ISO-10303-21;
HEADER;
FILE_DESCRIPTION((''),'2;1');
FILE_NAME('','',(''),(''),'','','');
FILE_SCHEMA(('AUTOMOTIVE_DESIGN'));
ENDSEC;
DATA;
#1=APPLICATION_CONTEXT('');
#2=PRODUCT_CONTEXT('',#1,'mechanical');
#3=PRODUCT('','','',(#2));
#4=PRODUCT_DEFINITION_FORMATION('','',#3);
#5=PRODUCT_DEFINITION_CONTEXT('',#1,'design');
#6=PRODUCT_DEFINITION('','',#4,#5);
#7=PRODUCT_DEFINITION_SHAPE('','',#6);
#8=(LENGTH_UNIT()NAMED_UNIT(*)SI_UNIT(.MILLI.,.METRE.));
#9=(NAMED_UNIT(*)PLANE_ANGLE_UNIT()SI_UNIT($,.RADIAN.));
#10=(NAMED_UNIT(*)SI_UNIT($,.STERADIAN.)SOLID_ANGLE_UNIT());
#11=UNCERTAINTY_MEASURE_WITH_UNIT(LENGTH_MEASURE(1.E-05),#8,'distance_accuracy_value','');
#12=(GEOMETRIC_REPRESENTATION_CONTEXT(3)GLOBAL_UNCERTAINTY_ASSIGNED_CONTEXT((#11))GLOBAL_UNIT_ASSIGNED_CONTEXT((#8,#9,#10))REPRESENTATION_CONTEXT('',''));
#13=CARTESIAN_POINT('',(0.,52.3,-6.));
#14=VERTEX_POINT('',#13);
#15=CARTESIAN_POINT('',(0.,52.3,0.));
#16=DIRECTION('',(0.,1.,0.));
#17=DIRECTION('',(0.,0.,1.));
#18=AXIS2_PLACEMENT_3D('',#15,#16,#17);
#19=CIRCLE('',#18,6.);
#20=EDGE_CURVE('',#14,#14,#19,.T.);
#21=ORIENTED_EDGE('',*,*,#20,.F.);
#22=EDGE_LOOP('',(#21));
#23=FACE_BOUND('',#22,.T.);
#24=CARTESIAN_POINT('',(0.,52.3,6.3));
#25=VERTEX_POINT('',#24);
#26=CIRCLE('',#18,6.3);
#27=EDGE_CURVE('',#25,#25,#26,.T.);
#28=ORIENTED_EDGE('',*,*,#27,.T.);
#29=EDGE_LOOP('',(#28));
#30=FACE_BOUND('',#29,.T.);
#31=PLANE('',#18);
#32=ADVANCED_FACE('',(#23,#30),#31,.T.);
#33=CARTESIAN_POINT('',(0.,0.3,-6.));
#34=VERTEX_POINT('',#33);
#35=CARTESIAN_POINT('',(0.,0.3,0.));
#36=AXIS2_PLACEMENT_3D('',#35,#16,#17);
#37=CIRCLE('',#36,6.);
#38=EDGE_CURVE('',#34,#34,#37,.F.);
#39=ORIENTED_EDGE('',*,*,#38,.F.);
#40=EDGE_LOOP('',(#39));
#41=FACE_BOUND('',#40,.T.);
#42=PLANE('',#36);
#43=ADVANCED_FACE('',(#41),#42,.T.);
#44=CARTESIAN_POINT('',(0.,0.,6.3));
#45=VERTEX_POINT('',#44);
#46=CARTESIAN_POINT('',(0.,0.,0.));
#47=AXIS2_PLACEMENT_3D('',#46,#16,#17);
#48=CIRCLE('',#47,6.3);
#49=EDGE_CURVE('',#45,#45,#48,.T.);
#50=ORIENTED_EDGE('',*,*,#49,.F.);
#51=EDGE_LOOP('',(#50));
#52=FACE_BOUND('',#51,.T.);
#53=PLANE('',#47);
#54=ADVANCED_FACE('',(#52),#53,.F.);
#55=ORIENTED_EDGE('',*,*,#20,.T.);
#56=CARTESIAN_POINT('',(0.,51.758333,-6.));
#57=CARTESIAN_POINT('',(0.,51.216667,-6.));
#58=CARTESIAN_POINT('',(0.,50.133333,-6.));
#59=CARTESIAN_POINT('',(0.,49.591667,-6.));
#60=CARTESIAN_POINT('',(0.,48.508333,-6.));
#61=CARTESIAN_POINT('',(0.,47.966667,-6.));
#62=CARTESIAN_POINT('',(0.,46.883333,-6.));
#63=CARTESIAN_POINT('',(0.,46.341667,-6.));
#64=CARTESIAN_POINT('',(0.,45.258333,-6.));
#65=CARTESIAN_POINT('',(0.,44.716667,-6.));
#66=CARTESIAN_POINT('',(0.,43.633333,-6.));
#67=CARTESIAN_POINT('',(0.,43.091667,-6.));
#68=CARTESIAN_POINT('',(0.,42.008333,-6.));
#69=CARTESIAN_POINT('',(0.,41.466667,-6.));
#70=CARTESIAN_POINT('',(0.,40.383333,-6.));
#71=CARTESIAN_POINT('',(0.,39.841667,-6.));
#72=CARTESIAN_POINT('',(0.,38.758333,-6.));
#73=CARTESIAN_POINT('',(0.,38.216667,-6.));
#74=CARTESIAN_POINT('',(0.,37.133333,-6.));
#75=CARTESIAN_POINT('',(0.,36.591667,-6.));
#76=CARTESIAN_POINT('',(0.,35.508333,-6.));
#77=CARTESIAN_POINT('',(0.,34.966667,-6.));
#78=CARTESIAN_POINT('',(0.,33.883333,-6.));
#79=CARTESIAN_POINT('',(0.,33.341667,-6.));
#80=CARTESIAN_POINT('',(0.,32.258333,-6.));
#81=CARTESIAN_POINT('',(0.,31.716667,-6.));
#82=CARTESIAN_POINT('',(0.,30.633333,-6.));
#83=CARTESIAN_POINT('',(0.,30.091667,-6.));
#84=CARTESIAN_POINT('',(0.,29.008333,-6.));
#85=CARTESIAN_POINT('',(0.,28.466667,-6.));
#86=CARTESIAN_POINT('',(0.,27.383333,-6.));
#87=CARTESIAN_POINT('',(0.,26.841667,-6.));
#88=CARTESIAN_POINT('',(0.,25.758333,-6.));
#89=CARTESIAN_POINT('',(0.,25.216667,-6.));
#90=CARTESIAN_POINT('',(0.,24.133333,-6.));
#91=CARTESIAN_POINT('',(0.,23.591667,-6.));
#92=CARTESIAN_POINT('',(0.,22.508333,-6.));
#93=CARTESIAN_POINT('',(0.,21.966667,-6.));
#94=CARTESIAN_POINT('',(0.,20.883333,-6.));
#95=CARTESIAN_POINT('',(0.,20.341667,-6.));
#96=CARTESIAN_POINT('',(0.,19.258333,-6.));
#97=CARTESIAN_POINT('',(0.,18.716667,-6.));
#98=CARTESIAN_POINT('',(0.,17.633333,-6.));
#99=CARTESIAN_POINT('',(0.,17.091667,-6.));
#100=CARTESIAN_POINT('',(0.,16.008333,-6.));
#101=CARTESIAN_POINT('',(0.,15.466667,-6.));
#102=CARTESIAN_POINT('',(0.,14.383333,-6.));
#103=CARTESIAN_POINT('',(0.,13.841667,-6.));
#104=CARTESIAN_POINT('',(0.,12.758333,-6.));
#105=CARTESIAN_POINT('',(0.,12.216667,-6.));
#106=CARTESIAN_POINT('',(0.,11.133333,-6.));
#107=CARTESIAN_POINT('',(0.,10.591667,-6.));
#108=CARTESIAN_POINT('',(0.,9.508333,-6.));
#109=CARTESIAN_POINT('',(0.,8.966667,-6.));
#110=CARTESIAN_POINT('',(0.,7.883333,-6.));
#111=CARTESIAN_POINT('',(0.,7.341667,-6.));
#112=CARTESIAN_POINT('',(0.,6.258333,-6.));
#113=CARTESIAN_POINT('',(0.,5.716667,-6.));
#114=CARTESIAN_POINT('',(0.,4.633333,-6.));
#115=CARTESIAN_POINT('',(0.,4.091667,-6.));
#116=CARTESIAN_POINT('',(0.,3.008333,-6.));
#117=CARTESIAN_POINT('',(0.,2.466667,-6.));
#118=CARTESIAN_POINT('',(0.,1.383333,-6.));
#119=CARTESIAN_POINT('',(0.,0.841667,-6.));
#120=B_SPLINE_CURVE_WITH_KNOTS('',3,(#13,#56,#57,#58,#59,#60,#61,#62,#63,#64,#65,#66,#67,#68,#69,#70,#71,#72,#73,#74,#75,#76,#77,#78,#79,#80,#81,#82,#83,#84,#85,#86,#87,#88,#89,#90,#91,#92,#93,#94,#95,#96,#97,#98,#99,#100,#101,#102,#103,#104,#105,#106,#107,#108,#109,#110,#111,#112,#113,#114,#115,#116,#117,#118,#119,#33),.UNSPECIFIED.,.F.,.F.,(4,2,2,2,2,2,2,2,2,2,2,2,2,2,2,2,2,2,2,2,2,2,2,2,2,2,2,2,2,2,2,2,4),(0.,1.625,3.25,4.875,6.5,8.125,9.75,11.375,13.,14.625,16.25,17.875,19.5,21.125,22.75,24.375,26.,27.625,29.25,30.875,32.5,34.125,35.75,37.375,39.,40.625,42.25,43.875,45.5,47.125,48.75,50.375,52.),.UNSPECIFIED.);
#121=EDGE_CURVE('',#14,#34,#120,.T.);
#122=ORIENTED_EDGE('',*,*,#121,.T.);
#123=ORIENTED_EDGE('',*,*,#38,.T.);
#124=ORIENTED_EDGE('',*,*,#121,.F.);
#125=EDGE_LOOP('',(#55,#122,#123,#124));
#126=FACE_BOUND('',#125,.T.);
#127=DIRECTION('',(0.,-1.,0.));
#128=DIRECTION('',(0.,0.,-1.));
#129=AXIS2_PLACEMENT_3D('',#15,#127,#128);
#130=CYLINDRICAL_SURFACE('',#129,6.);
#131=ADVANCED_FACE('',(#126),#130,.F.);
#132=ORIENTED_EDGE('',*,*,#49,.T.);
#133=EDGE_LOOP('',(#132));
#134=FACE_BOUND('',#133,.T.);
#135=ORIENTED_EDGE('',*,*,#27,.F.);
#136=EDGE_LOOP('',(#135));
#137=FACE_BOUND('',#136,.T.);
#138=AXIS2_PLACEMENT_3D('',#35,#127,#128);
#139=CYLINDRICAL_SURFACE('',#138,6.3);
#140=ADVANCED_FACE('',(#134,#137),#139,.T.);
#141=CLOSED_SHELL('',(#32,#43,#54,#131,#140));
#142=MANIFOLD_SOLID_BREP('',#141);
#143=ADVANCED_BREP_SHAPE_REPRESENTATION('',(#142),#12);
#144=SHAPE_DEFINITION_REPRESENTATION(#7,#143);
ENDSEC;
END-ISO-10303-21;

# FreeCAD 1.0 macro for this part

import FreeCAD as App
import Part
import Sketcher

doc = App.newDocument("Part")
body = doc.addObject("PartDesign::Body", "Body")

# Sketch on XZ plane
sketch1 = body.newObject("Sketcher::SketchObject", "Sketch")
sketch1.AttachmentSupport = (doc.getObject("XZ_Plane"), [""])
sketch1.MapMode = "FlatFace"
sketch1.addGeometry(Part.Circle(App.Vector(0, 0, 0), App.Vector(0, 0, 1), 6.3), False)
sketch1.addConstraint([
    Sketcher.Constraint("Coincident", 0, 3, -1, 1),
    Sketcher.Constraint("Diameter", 0, 12.6),
])
pad1 = body.newObject("PartDesign::Pad", "Pad")
pad1.Profile = sketch1
pad1.Length = 0.3
pad1.Reversed = True

# Sketch on XZ plane
sketch2 = body.newObject("Sketcher::SketchObject", "Sketch001")
sketch2.AttachmentSupport = (doc.getObject("XZ_Plane"), [""])
sketch2.MapMode = "FlatFace"
sketch2.AttachmentOffset = App.Placement(App.Vector(0, 0, -0.3), App.Rotation())
sketch2.addGeometry([
    Part.Circle(App.Vector(0, 0, 0), App.Vector(0, 0, 1), 6.3),
    Part.Circle(App.Vector(0, 0, 0), App.Vector(0, 0, 1), 6),
], False)
sketch2.addConstraint([
    Sketcher.Constraint("Coincident", 0, 3, -1, 1),
    Sketcher.Constraint("Coincident", 1, 3, -1, 1),
    Sketcher.Constraint("Diameter", 1, 12.0),
    Sketcher.Constraint("Diameter", 0, 12.6),
])
pad2 = body.newObject("PartDesign::Pad", "Pad001")
pad2.Profile = sketch2
pad2.Length = 52
pad2.Reversed = True

doc.recompute()
